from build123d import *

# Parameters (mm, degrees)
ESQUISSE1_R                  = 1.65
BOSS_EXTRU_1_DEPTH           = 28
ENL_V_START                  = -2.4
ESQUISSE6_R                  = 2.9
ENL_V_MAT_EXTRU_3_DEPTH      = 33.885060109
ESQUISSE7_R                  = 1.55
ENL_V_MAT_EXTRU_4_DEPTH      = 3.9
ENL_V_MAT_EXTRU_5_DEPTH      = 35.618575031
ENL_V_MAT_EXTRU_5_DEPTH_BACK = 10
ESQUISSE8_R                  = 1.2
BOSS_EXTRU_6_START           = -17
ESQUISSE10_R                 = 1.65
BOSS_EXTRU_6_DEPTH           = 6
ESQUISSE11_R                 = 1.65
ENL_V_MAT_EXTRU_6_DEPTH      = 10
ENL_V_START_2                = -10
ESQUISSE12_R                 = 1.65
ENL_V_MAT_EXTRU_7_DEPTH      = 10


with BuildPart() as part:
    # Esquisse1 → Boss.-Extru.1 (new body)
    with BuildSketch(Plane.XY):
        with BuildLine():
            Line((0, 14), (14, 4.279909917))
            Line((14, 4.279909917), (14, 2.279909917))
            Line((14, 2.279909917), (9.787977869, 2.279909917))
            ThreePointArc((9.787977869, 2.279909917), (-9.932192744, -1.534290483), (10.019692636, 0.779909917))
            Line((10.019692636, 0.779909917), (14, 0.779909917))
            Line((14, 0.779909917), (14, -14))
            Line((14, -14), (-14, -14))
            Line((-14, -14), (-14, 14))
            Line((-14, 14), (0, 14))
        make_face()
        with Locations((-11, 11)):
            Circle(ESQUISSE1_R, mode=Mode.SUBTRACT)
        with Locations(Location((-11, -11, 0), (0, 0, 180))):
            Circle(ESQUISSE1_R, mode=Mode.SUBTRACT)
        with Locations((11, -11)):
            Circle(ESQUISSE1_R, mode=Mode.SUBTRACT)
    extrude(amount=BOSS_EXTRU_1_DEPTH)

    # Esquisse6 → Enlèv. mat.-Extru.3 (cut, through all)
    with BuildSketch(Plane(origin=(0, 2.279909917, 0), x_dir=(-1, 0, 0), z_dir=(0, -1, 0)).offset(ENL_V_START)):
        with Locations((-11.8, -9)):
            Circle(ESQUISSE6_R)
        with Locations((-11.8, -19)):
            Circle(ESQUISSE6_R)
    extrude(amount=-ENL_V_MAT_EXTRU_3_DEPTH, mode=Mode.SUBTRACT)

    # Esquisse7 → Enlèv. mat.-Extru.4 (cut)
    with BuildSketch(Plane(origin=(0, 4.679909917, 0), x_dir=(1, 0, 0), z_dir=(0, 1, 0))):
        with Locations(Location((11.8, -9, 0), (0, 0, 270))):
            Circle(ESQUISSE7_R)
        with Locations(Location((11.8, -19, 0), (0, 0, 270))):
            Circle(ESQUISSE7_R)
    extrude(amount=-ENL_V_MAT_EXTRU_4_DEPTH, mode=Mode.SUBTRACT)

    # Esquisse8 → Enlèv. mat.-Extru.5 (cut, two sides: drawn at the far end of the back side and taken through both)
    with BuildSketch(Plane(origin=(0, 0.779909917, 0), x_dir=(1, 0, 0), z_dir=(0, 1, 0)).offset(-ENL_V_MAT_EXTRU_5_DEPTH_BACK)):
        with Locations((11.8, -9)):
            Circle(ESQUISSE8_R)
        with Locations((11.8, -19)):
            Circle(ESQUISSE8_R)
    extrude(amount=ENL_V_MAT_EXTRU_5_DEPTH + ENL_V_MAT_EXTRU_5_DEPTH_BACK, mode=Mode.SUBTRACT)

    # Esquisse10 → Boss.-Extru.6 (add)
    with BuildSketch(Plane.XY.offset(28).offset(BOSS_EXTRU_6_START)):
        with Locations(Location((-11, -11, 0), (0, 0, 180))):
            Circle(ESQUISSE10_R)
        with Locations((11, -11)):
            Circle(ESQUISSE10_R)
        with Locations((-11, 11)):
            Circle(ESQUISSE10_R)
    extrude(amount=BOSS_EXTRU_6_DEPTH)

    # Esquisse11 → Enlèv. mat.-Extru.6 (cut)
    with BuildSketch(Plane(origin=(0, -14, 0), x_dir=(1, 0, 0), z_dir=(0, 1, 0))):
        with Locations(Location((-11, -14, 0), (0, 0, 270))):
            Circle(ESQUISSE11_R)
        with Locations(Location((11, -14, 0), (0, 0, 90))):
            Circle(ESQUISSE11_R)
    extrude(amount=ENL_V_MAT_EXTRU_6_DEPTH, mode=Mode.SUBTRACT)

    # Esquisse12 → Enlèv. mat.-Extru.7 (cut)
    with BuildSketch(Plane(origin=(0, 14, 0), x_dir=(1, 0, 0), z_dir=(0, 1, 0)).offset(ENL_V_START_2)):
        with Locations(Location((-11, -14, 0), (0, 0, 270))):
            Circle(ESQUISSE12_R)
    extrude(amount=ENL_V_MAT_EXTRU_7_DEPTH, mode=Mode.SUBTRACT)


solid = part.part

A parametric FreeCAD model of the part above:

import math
import FreeCAD as App
import Part
import Sketcher

doc = App.newDocument("Part")
body = doc.addObject("PartDesign::Body", "Body")

# Sketch on XY plane
sketch1 = body.newObject("Sketcher::SketchObject", "Sketch")
sketch1.AttachmentSupport = (doc.getObject("XY_Plane"), [""])
sketch1.MapMode = "FlatFace"
sketch1.addGeometry(Part.LineSegment(App.Vector(14, 4.3, 0), App.Vector(0, 14, 0)), False)
sketch1.addGeometry(Part.LineSegment(App.Vector(0, 14, 0), App.Vector(-14, 14, 0)), False)
sketch1.addGeometry(Part.LineSegment(App.Vector(-14, 14, 0), App.Vector(-14, -14, 0)), False)
sketch1.addGeometry(Part.LineSegment(App.Vector(-14, -14, 0), App.Vector(14, -14, 0)), False)
sketch1.addGeometry(Part.LineSegment(App.Vector(14, -14, 0), App.Vector(14, 0.8, 0)), False)
sketch1.addGeometry(Part.LineSegment(App.Vector(14, 0.8, 0), App.Vector(10, 0.8, 0)), False)
sketch1.addGeometry(Part.ArcOfCircle(Part.Circle(App.Vector(0, 0, 0), App.Vector(0, 0, 1), 10.1), math.radians(13), math.radians(364)), False)
sketch1.addGeometry(Part.LineSegment(App.Vector(9.8, 2.3, 0), App.Vector(14, 2.3, 0)), False)
sketch1.addGeometry(Part.LineSegment(App.Vector(14, 2.3, 0), App.Vector(14, 4.3, 0)), False)
sketch1.addGeometry(Part.Circle(App.Vector(11, -11, 0), App.Vector(0, 0, 1), 1.6), False)
sketch1.addGeometry(Part.Circle(App.Vector(-11, -11, 0), App.Vector(0, 0, 1), 1.6), False)
sketch1.addGeometry(Part.Circle(App.Vector(-11, 11, 0), App.Vector(0, 0, 1), 1.6), False)
sketch1.addConstraint(Sketcher.Constraint("Coincident", 0, 2, 1, 1))
sketch1.addConstraint(Sketcher.Constraint("Coincident", 1, 2, 2, 1))
sketch1.addConstraint(Sketcher.Constraint("Coincident", 2, 2, 3, 1))
sketch1.addConstraint(Sketcher.Constraint("Coincident", 3, 2, 4, 1))
sketch1.addConstraint(Sketcher.Constraint("Coincident", 4, 2, 5, 1))
sketch1.addConstraint(Sketcher.Constraint("Coincident", 5, 2, 6, 2))
sketch1.addConstraint(Sketcher.Constraint("Coincident", 6, 1, 7, 1))
sketch1.addConstraint(Sketcher.Constraint("Coincident", 7, 2, 8, 1))
sketch1.addConstraint(Sketcher.Constraint("Coincident", 8, 2, 0, 1))
sketch1.addConstraint(Sketcher.Constraint("Horizontal", 1))
sketch1.addConstraint(Sketcher.Constraint("Vertical", 2))
sketch1.addConstraint(Sketcher.Constraint("Horizontal", 3))
sketch1.addConstraint(Sketcher.Constraint("Vertical", 4))
sketch1.addConstraint(Sketcher.Constraint("Horizontal", 5))
sketch1.addConstraint(Sketcher.Constraint("Horizontal", 7))
sketch1.addConstraint(Sketcher.Constraint("Vertical", 8))
sketch1.addConstraint(Sketcher.Constraint("Coincident", 6, 3, -1, 1))
sketch1.addConstraint(Sketcher.Constraint("Equal", 9, 10))
sketch1.addConstraint(Sketcher.Constraint("Equal", 10, 11))
sketch1.addConstraint(Sketcher.Constraint("Symmetric", 9, 3, 11, 3, -1, 1))
sketch1.addConstraint(Sketcher.Constraint("Symmetric", 1, 2, 3, 2, -1, 1))
sketch1.addConstraint(Sketcher.Constraint("Symmetric", 9, 3, 10, 3, -2))
sketch1.addConstraint(Sketcher.Constraint("PointOnObject", 0, 2, -2))
sketch1.addConstraint(Sketcher.Constraint("Vertical", 4, 2, 7, 2))
sketch1.addConstraint(Sketcher.Constraint("Equal", 3, 2))
sketch1.addConstraint(Sketcher.Constraint("Diameter", 9, 3.3))
sketch1.addConstraint(Sketcher.Constraint("DistanceX", 1, 2, 1, 1, 14.0))
sketch1.addConstraint(Sketcher.Constraint("DistanceY", 8, 1, 8, 2, 2.0))
sketch1.addConstraint(Sketcher.Constraint("Radius", 6, 10.05))
sketch1.addConstraint(Sketcher.Constraint("DistanceX", -1, 1, 9, 3, 11.0))
sketch1.addConstraint(Sketcher.Constraint("DistanceY", 9, 3, -1, 1, 11.0))
sketch1.addConstraint(Sketcher.Constraint("DistanceY", 5, 2, 6, 1, 1.5))
sketch1.addConstraint(Sketcher.Constraint("DistanceY", 4, 1, 4, 2, 14.77991))
pad1 = body.newObject("PartDesign::Pad", "Pad")
pad1.Profile = sketch1
pad1.Length = 28

# Sketch on XZ plane
sketch2 = body.newObject("Sketcher::SketchObject", "Sketch001")
sketch2.AttachmentSupport = (doc.getObject("XZ_Plane"), [""])
sketch2.MapMode = "FlatFace"
sketch2.AttachmentOffset = App.Placement(App.Vector(0, 0, -4.67991), App.Rotation())
sketch2.addGeometry(Part.Circle(App.Vector(11.8, 9, 0), App.Vector(0, 0, 1), 2.9), False)
sketch2.addGeometry(Part.Circle(App.Vector(11.8, 19, 0), App.Vector(0, 0, 1), 2.9), False)
sketch2.addConstraint(Sketcher.Constraint("Equal", 0, 1))
sketch2.addConstraint(Sketcher.Constraint("Vertical", 0, 3, 1, 3))
sketch2.addConstraint(Sketcher.Constraint("Diameter", 0, 5.8))
sketch2.addConstraint(Sketcher.Constraint("DistanceY", -1, 1, 0, 3, 9.0))
sketch2.addConstraint(Sketcher.Constraint("DistanceY", -1, 1, 1, 3, 19.0))
sketch2.addConstraint(Sketcher.Constraint("DistanceX", -1, 1, 0, 3, 11.8))
pocket1 = body.newObject("PartDesign::Pocket", "Pocket")
pocket1.Profile = sketch2
pocket1.Type = "ThroughAll"

# Sketch on XZ plane
sketch3 = body.newObject("Sketcher::SketchObject", "Sketch002")
sketch3.AttachmentSupport = (doc.getObject("XZ_Plane"), [""])
sketch3.MapMode = "FlatFace"
sketch3.AttachmentOffset = App.Placement(App.Vector(0, 0, -4.67991), App.Rotation())
sketch3.addGeometry(Part.Circle(App.Vector(11.8, 9, 0), App.Vector(0, 0, 1), 1.6), False)
sketch3.addGeometry(Part.Circle(App.Vector(11.8, 19, 0), App.Vector(0, 0, 1), 1.6), False)
sketch3.addConstraint(Sketcher.Constraint("Equal", 0, 1))
sketch3.addConstraint(Sketcher.Constraint("Vertical", 0, 3, 1, 3))
sketch3.addConstraint(Sketcher.Constraint("Diameter", 0, 3.1))
sketch3.addConstraint(Sketcher.Constraint("DistanceY", -1, 1, 0, 3, 9.0))
sketch3.addConstraint(Sketcher.Constraint("DistanceY", -1, 1, 1, 3, 19.0))
sketch3.addConstraint(Sketcher.Constraint("DistanceX", -1, 1, 0, 3, 11.8))
pocket2 = body.newObject("PartDesign::Pocket", "Pocket001")
pocket2.Profile = sketch3
pocket2.Length = 3.9
pocket2.Reversed = True

# Sketch on XZ plane
sketch4 = body.newObject("Sketcher::SketchObject", "Sketch003")
sketch4.AttachmentSupport = (doc.getObject("XZ_Plane"), [""])
sketch4.MapMode = "FlatFace"
sketch4.AttachmentOffset = App.Placement(App.Vector(0, 0, -0.77991), App.Rotation())
sketch4.addGeometry(Part.Circle(App.Vector(11.8, 9, 0), App.Vector(0, 0, 1), 1.2), False)
sketch4.addGeometry(Part.Circle(App.Vector(11.8, 19, 0), App.Vector(0, 0, 1), 1.2), False)
sketch4.addConstraint(Sketcher.Constraint("Equal", 0, 1))
sketch4.addConstraint(Sketcher.Constraint("Vertical", 0, 3, 1, 3))
sketch4.addConstraint(Sketcher.Constraint("Diameter", 0, 2.4))
sketch4.addConstraint(Sketcher.Constraint("DistanceY", -1, 1, 0, 3, 9.0))
sketch4.addConstraint(Sketcher.Constraint("DistanceY", -1, 1, 1, 3, 19.0))
sketch4.addConstraint(Sketcher.Constraint("DistanceX", -1, 1, 0, 3, 11.8))
pocket3 = body.newObject("PartDesign::Pocket", "Pocket002")
pocket3.Profile = sketch4
pocket3.Type = "TwoLengths"
pocket3.Length = 35.618575
pocket3.Length2 = 10

# Sketch on XY plane
sketch5 = body.newObject("Sketcher::SketchObject", "Sketch004")
sketch5.AttachmentSupport = (doc.getObject("XY_Plane"), [""])
sketch5.MapMode = "FlatFace"
sketch5.AttachmentOffset = App.Placement(App.Vector(0, 0, 11), App.Rotation())
sketch5.addGeometry(Part.Circle(App.Vector(-11, -11, 0), App.Vector(0, 0, 1), 1.6), False)
sketch5.addGeometry(Part.Circle(App.Vector(11, -11, 0), App.Vector(0, 0, 1), 1.6), False)
sketch5.addGeometry(Part.Circle(App.Vector(-11, 11, 0), App.Vector(0, 0, 1), 1.6), False)
sketch5.addConstraint(Sketcher.Constraint("Equal", 0, 1))
sketch5.addConstraint(Sketcher.Constraint("Equal", 1, 2))
sketch5.addConstraint(Sketcher.Constraint("Symmetric", 1, 3, 2, 3, -1, 1))
sketch5.addConstraint(Sketcher.Constraint("Symmetric", 0, 3, 1, 3, -2))
sketch5.addConstraint(Sketcher.Constraint("Diameter", 0, 3.3))
sketch5.addConstraint(Sketcher.Constraint("DistanceX", 0, 3, -1, 1, 11.0))
sketch5.addConstraint(Sketcher.Constraint("DistanceY", 0, 3, -1, 1, 11.0))
pad2 = body.newObject("PartDesign::Pad", "Pad001")
pad2.Profile = sketch5
pad2.Length = 6

# Sketch on XZ plane
sketch6 = body.newObject("Sketcher::SketchObject", "Sketch005")
sketch6.AttachmentSupport = (doc.getObject("XZ_Plane"), [""])
sketch6.MapMode = "FlatFace"
sketch6.AttachmentOffset = App.Placement(App.Vector(0, 0, 14), App.Rotation())
sketch6.addGeometry(Part.Circle(App.Vector(-11, 14, 0), App.Vector(0, 0, 1), 1.6), False)
sketch6.addGeometry(Part.Circle(App.Vector(11, 14, 0), App.Vector(0, 0, 1), 1.6), False)
sketch6.addConstraint(Sketcher.Constraint("Equal", 0, 1))
sketch6.addConstraint(Sketcher.Constraint("Symmetric", 0, 3, 1, 3, -2))
sketch6.addConstraint(Sketcher.Constraint("Diameter", 0, 3.3))
sketch6.addConstraint(Sketcher.Constraint("DistanceX", 0, 3, -1, 1, 11.0))
sketch6.addConstraint(Sketcher.Constraint("DistanceY", -1, 1, 0, 3, 14.0))
pocket4 = body.newObject("PartDesign::Pocket", "Pocket003")
pocket4.Profile = sketch6
pocket4.Length = 10

# Sketch on XZ plane
sketch7 = body.newObject("Sketcher::SketchObject", "Sketch006")
sketch7.AttachmentSupport = (doc.getObject("XZ_Plane"), [""])
sketch7.MapMode = "FlatFace"
sketch7.AttachmentOffset = App.Placement(App.Vector(0, 0, -4), App.Rotation())
sketch7.addGeometry(Part.Circle(App.Vector(-11, 14, 0), App.Vector(0, 0, 1), 1.6), False)
sketch7.addConstraint(Sketcher.Constraint("Diameter", 0, 3.3))
sketch7.addConstraint(Sketcher.Constraint("DistanceX", 0, 3, -1, 1, 11.0))
sketch7.addConstraint(Sketcher.Constraint("DistanceY", -1, 1, 0, 3, 14.0))
pocket5 = body.newObject("PartDesign::Pocket", "Pocket004")
pocket5.Profile = sketch7
pocket5.Length = 10

doc.recompute()
